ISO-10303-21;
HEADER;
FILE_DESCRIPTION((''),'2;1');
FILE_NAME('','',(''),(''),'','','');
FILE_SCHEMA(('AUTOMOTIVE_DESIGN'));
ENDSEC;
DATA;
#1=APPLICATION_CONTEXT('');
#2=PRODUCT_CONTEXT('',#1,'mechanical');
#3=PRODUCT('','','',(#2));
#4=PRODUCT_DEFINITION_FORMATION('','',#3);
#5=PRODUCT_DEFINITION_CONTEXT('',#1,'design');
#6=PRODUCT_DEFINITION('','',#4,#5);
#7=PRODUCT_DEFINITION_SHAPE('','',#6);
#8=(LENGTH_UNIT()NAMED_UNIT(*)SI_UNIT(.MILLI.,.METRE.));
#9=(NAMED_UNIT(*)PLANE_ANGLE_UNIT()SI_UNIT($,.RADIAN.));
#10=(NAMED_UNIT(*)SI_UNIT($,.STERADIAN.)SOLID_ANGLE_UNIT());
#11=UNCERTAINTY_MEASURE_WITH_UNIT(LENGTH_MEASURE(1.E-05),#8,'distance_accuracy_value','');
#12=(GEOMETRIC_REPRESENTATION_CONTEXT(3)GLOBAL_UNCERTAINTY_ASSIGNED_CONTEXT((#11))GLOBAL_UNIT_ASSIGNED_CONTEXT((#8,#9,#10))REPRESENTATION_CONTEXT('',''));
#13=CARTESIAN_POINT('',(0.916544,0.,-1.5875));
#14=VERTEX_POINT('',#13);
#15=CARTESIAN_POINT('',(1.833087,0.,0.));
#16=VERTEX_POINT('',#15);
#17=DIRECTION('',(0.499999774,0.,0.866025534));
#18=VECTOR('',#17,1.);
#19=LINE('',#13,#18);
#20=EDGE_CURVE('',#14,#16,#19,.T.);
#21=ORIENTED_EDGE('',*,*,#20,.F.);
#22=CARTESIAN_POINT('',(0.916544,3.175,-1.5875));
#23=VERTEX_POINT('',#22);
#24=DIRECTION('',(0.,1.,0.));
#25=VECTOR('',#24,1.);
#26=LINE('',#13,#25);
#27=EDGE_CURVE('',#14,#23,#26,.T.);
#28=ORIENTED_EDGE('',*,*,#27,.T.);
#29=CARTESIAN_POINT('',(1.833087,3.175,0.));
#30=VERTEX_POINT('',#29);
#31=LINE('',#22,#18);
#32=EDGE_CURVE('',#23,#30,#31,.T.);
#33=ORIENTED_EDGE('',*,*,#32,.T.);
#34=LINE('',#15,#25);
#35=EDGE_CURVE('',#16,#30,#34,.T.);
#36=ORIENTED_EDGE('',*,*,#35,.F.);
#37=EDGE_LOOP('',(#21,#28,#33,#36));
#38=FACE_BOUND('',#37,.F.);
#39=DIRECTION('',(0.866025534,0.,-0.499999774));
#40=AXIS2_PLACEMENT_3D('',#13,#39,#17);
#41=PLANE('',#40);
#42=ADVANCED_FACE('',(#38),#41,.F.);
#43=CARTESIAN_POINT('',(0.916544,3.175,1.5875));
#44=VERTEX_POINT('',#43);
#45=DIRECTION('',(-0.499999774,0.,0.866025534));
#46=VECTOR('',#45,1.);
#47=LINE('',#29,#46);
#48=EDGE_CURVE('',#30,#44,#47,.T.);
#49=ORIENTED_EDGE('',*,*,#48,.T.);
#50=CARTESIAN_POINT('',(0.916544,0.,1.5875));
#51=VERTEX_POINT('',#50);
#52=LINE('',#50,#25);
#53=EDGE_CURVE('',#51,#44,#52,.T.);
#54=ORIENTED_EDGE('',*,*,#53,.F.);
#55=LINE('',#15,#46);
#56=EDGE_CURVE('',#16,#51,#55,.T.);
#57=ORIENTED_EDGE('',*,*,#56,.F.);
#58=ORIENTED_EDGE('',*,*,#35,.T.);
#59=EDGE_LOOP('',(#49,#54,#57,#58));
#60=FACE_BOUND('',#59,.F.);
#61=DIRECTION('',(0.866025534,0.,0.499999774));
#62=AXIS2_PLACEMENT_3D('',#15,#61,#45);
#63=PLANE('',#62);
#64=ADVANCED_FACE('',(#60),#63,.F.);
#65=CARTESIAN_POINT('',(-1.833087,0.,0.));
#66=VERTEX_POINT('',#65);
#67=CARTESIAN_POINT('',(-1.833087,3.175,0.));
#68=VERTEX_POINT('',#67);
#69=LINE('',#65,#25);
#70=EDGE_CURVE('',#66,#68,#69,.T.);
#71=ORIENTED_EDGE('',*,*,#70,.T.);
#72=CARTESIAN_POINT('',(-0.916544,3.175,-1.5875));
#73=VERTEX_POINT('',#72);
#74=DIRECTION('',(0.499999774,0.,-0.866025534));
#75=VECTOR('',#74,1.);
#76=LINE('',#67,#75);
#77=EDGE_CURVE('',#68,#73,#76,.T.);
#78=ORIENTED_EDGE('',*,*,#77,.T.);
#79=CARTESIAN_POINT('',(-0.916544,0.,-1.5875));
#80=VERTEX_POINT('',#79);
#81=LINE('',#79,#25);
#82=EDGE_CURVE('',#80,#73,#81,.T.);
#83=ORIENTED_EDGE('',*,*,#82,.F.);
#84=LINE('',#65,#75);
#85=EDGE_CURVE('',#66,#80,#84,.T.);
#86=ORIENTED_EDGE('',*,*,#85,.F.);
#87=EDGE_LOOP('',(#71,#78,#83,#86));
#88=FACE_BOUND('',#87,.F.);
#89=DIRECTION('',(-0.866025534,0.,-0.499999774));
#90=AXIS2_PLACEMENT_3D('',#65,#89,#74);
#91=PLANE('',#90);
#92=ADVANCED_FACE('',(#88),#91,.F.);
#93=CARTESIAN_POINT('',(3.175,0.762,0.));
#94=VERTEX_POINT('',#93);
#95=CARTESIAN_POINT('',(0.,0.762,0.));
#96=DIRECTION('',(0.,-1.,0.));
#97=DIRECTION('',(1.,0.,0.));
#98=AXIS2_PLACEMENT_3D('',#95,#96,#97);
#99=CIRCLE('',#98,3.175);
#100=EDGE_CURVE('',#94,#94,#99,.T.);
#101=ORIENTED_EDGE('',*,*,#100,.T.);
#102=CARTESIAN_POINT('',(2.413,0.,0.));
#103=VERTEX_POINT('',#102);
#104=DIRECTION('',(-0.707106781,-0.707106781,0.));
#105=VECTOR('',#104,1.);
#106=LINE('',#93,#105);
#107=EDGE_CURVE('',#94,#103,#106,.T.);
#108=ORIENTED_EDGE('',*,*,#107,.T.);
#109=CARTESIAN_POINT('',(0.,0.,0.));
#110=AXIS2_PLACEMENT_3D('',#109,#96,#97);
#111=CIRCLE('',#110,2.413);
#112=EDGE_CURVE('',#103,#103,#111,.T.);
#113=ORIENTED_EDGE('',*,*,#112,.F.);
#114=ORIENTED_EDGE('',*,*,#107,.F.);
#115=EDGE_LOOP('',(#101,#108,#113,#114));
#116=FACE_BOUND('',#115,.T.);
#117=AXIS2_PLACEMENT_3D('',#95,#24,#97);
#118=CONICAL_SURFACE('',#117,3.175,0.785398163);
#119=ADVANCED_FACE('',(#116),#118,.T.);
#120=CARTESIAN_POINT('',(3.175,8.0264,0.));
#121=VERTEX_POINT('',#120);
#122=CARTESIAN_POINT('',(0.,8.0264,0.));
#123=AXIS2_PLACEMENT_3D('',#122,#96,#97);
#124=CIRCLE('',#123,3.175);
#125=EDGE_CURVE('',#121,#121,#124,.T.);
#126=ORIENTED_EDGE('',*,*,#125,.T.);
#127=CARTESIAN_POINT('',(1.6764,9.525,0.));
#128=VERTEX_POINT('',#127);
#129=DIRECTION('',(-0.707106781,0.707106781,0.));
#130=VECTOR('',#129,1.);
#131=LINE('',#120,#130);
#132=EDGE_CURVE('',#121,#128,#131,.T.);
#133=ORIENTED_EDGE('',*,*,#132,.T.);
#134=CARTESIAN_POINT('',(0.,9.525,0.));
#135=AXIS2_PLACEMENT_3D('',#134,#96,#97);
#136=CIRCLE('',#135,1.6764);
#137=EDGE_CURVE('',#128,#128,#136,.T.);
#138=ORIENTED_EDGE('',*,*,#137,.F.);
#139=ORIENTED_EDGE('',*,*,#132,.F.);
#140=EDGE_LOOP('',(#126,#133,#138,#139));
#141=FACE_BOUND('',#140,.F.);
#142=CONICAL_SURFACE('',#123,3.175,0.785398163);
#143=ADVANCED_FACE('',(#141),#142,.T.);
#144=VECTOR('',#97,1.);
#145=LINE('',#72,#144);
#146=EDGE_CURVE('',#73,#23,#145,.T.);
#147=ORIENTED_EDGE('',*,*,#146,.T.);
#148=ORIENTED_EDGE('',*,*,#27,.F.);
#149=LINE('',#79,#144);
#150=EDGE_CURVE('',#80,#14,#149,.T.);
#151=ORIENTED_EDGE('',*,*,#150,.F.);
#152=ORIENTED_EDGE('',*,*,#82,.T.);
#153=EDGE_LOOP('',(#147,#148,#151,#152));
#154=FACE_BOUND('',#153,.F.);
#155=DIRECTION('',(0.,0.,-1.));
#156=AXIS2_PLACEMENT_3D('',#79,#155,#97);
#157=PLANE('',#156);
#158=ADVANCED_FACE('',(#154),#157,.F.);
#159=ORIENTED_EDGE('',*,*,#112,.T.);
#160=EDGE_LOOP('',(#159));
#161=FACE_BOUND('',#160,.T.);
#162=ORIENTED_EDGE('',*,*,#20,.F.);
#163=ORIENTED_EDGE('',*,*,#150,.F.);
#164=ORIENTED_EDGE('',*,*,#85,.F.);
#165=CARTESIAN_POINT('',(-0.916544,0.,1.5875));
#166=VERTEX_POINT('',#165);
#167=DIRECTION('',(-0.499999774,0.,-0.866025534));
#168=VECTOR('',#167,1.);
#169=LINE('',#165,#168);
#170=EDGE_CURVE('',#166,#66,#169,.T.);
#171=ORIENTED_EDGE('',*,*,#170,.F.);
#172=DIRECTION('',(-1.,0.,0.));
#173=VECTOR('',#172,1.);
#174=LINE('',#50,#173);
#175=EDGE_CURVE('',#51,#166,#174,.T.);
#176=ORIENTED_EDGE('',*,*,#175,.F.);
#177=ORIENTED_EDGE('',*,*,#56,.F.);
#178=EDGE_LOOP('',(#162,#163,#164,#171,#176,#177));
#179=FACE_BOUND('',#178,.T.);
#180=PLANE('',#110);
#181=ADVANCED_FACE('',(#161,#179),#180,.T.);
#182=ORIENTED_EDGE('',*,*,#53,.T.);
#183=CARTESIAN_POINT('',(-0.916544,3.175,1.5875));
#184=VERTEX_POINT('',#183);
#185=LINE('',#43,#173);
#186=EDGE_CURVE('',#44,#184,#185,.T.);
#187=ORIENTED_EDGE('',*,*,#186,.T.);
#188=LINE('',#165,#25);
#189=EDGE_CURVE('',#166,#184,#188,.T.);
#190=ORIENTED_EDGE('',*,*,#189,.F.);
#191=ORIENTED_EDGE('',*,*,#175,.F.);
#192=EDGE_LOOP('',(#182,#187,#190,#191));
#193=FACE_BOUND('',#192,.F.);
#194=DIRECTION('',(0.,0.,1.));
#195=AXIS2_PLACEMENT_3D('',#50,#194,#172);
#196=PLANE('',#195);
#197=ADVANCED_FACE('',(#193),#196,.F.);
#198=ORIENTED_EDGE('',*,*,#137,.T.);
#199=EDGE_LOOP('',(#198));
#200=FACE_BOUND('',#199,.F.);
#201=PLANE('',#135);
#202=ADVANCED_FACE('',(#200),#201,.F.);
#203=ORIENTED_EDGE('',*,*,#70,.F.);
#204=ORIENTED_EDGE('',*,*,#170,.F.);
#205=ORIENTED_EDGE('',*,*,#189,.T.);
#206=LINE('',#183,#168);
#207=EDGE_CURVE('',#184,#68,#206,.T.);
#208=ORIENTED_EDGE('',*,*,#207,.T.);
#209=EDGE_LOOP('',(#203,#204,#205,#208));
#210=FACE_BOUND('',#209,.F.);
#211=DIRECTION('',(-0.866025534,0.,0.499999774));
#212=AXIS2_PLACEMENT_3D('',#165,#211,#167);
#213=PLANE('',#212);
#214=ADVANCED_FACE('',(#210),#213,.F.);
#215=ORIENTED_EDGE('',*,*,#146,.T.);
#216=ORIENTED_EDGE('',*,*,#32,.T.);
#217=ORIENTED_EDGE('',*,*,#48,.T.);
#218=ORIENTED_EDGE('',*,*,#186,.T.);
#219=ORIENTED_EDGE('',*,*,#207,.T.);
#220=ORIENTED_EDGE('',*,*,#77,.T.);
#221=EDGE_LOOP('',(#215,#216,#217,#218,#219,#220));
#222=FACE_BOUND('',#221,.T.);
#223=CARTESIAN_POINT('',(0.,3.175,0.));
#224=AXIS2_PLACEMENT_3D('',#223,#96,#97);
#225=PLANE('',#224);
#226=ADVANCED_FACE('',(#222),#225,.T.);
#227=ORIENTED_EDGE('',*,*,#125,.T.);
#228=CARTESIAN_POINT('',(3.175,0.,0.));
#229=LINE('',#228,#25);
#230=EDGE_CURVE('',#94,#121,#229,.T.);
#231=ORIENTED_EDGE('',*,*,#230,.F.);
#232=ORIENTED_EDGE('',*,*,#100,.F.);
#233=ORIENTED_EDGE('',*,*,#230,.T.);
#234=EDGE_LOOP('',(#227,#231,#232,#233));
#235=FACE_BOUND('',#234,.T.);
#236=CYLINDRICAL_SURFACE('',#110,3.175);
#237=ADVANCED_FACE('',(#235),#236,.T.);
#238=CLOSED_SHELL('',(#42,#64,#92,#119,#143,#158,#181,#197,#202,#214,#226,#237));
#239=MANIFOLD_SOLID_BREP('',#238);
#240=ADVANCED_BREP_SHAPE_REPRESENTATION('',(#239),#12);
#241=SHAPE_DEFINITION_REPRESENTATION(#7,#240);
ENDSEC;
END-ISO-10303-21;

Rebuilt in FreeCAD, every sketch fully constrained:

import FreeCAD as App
import Part
import Sketcher
Q = App.Units.Quantity


def edges_at(feature, points):
    """Names of the edges that pass closest to the given points."""
    edges = feature.Shape.Edges
    near = lambda p: min(range(len(edges)), key=lambda i: edges[i].distToShape(Part.Vertex(*p))[0])
    return sorted({f"Edge{near(p) + 1}" for p in points})


def add_polygon(sketch, points):
    """Adds a closed chain of lines whose ends are joined by coincident constraints."""
    first, n = sketch.GeometryCount, len(points)
    for a, b in zip(points, points[1:] + points[:1]):
        sketch.addGeometry(Part.LineSegment(App.Vector(*a, 0), App.Vector(*b, 0)), False)
    for i in range(n):
        sketch.addConstraint(Sketcher.Constraint("Coincident", first + i, 2, first + (i + 1) % n, 1))

doc = App.newDocument("Part")
params = doc.addObject("Spreadsheet::Sheet", "Params")
for row, (alias, value) in enumerate([
    ("sketch1_diameter", "0.25 in"),
    ("pad1_length", "0.375 in"),
    ("chamfer_size", "0.059 in"),
    ("chamfer_size2", "0.059 in"),
    ("chamfer2_size", "0.03 in"),
    ("chamfer2_size2", "0.03 in"),
    ("pocket1_length", "0.125 in"),
], start=1):
    params.set(f"A{row}", alias)
    params.set(f"B{row}", "=" + value)
    params.setAlias(f"B{row}", alias)

body = doc.addObject("PartDesign::Body", "Body")

sketch1 = body.newObject("Sketcher::SketchObject", "Sketch")
sketch1.AttachmentSupport = (doc.getObject("XZ_Plane"), [""])
sketch1.MapMode = "FlatFace"
sketch1.addGeometry(Part.Circle(App.Vector(0, 0, 0), App.Vector(0, 0, 1), 3.2), False)
sketch1.addConstraint(Sketcher.Constraint("Coincident", 0, 3, -1, 1))
sketch1.addConstraint(Sketcher.Constraint("Diameter", 0, Q("0.25 in")))
sketch1.setExpression("Constraints[1]", "Params.sketch1_diameter")
pad1 = body.newObject("PartDesign::Pad", "Pad")
pad1.Profile = sketch1
pad1.setExpression("Length", "Params.pad1_length")
pad1.Reversed = True
doc.recompute()

chamfer = body.newObject("PartDesign::Chamfer", "Chamfer")
chamfer.Base = (pad1, edges_at(pad1, [(-3.175, 9.525, 0)]))
chamfer.ChamferType = "Two distances"
chamfer.setExpression("Size", "Params.chamfer_size")
chamfer.setExpression("Size2", "Params.chamfer_size2")
doc.recompute()

chamfer2 = body.newObject("PartDesign::Chamfer", "Chamfer001")
chamfer2.Base = (chamfer, edges_at(chamfer, [(-3.175, 0, 0)]))
chamfer2.ChamferType = "Two distances"
chamfer2.setExpression("Size", "Params.chamfer2_size")
chamfer2.setExpression("Size2", "Params.chamfer2_size2")

sketch2 = body.newObject("Sketcher::SketchObject", "Sketch001")
sketch2.AttachmentSupport = (doc.getObject("XZ_Plane"), [""])
sketch2.MapMode = "FlatFace"
add_polygon(sketch2, [(0.9, 1.6), (-0.9, 1.6), (-1.8, 0), (-0.9, -1.6), (0.9, -1.6), (1.8, 0)])
sketch2.addConstraint(Sketcher.Constraint("Horizontal", 0))
sketch2.addConstraint(Sketcher.Constraint("Horizontal", 3))
sketch2.addConstraint(Sketcher.Constraint("Symmetric", 0, 2, 3, 2, -1, 1))
sketch2.addConstraint(Sketcher.Constraint("Symmetric", 1, 2, 4, 2, -1, 1))
sketch2.addConstraint(Sketcher.Constraint("PointOnObject", 1, 2, -1))
sketch2.addConstraint(Sketcher.Constraint("Parallel", 2, 5))
sketch2.addConstraint(Sketcher.Constraint("Vertical", 0, 2, 2, 2))
sketch2.addConstraint(Sketcher.Constraint("Angle", 1, Q("-119.999985 deg")))
sketch2.addConstraint(Sketcher.Constraint("DistanceY", -1, 1, 0, 2, Q("0.0625 in")))
sketch2.addConstraint(Sketcher.Constraint("DistanceX", 0, 2, 0, 1, Q("1.833088 mm")))
pocket1 = body.newObject("PartDesign::Pocket", "Pocket")
pocket1.Profile = sketch2
pocket1.setExpression("Length", "Params.pocket1_length")

doc.recompute()
